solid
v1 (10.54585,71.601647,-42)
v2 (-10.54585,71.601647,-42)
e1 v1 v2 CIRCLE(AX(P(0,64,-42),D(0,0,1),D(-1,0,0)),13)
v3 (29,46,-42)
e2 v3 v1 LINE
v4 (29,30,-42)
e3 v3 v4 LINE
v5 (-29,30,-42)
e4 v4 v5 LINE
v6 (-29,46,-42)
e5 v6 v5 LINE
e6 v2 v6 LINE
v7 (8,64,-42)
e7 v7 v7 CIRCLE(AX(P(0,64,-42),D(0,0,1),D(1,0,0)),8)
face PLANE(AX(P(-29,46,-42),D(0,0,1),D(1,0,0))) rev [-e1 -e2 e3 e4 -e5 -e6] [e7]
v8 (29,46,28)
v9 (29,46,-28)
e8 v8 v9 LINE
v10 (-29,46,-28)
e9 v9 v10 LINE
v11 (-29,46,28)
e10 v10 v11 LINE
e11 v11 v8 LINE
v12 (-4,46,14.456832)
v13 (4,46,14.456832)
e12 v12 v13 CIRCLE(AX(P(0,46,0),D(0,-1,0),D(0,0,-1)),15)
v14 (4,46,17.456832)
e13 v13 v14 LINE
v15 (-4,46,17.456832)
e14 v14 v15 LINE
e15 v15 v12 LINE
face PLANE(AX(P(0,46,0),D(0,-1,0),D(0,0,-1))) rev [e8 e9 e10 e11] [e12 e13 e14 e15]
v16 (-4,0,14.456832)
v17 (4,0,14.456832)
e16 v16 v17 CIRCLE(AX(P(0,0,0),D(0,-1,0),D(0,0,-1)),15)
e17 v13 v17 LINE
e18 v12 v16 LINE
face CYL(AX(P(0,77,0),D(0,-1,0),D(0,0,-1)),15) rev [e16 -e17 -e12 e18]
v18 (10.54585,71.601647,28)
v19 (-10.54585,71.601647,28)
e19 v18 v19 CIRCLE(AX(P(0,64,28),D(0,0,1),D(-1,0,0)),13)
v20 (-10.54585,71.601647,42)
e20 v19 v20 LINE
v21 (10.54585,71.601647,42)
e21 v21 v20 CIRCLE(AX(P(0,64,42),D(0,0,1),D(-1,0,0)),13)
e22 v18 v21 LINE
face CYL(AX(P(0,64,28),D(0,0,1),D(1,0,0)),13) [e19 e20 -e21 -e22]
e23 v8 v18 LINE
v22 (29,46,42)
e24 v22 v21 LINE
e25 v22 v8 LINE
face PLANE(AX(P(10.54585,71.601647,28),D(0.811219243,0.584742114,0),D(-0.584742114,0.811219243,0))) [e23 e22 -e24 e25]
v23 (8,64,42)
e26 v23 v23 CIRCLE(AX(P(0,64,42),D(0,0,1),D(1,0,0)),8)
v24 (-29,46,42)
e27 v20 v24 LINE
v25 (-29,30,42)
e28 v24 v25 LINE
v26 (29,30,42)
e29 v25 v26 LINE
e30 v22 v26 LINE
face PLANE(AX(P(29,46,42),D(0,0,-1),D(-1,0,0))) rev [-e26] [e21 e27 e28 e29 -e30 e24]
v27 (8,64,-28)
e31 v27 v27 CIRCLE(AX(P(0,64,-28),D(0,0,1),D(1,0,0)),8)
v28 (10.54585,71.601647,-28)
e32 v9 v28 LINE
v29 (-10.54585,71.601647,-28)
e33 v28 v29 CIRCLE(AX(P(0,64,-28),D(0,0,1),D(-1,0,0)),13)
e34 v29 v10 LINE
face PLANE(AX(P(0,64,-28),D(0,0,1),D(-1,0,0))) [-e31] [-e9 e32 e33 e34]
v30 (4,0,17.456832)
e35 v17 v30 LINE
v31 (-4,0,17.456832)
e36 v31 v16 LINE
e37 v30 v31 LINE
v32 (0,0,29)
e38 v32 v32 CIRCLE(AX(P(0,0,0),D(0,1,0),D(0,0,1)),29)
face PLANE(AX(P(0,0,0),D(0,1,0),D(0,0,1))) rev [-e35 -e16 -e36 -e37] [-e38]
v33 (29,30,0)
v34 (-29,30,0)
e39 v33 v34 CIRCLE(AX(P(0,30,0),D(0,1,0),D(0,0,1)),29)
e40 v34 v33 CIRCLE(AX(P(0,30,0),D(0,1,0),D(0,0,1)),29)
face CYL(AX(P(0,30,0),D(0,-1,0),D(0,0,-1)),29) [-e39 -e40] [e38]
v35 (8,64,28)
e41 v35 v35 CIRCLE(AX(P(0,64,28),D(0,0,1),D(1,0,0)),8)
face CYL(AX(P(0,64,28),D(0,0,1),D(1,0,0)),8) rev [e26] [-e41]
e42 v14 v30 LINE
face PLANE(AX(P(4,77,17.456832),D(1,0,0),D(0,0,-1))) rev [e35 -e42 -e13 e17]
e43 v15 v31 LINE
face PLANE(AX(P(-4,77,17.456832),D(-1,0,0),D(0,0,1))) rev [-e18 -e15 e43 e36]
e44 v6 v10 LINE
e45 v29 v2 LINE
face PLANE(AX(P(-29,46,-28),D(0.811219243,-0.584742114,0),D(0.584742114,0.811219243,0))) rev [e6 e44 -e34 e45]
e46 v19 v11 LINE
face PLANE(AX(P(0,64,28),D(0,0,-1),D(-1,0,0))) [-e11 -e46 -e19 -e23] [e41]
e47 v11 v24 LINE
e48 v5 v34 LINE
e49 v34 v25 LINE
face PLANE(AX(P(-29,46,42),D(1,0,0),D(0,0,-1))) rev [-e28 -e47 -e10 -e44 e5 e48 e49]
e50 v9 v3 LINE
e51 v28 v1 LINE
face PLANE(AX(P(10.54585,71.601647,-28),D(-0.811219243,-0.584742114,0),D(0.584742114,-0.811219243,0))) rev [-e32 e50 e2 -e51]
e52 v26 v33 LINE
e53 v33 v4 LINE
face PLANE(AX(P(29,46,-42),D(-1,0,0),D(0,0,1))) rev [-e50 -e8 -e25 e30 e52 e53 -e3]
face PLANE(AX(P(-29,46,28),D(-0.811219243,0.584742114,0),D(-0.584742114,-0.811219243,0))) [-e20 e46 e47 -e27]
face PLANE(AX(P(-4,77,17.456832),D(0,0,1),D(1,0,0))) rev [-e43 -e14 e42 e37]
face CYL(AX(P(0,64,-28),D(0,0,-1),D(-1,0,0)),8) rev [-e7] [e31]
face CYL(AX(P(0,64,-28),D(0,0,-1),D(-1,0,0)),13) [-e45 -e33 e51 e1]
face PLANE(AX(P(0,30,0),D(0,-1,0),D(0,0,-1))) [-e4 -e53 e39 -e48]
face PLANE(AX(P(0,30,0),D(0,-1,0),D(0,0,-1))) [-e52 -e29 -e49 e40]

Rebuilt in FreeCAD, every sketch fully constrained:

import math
import FreeCAD as App
import Part
import Sketcher


def add_polygon(sketch, points):
    """Adds a closed chain of lines whose ends are joined by coincident constraints."""
    first, n = sketch.GeometryCount, len(points)
    for a, b in zip(points, points[1:] + points[:1]):
        sketch.addGeometry(Part.LineSegment(App.Vector(*a, 0), App.Vector(*b, 0)), False)
    for i in range(n):
        sketch.addConstraint(Sketcher.Constraint("Coincident", first + i, 2, first + (i + 1) % n, 1))

doc = App.newDocument("Part")
params = doc.addObject("Spreadsheet::Sheet", "Params")
for row, (alias, value) in enumerate([
    ("sketch1_diameter", "58 mm"),
    ("pad1_length", "30 mm"),
    ("sketch2_width", "58 mm"),
    ("sketch2_height", "84 mm"),
    ("pad2_length", "16 mm"),
    ("sketch3_diameter", "16 mm"),
    ("sketch3_radius", "13 mm"),
    ("sketch3_width", "58 mm"),
    ("sketch3_height", "16 mm"),
    ("pad3_length", "14 mm"),
    ("sketch4_radius", "15 mm"),
    ("sketch4_width", "8 mm"),
    ("sketch4_height", "3 mm"),
], start=1):
    params.set(f"A{row}", alias)
    params.set(f"B{row}", "=" + value)
    params.setAlias(f"B{row}", alias)

body = doc.addObject("PartDesign::Body", "Body")

# Sketch on XZ plane
sketch1 = doc.addObject("Sketcher::SketchObject", "Sketch")
body.addObject(sketch1)
sketch1.AttachmentSupport = (doc.XZ_Plane, [""])
sketch1.MapMode = "FlatFace"
sketch1.addGeometry(Part.Circle(App.Vector(0, 0, 0), App.Vector(0, 0, 1), 29), False)
sketch1.addConstraint(Sketcher.Constraint("Coincident", 0, 3, -1, 1))
sketch1.addConstraint(Sketcher.Constraint("Diameter", 0, 58.0))
sketch1.setExpression("Constraints[1]", "Params.sketch1_diameter")
pad1 = doc.addObject("PartDesign::Pad", "Pad")
body.addObject(pad1)
pad1.Profile = sketch1
pad1.setExpression("Length", "Params.pad1_length")
pad1.Reversed = True

# Sketch on XZ plane
sketch2 = doc.addObject("Sketcher::SketchObject", "Sketch001")
body.addObject(sketch2)
sketch2.AttachmentSupport = (doc.XZ_Plane, [""])
sketch2.MapMode = "FlatFace"
sketch2.AttachmentOffset = App.Placement(App.Vector(0, 0, -30), App.Rotation())
add_polygon(sketch2, [(29, 42), (29, -42), (-29, -42), (-29, 42)])  # lines 0-3
sketch2.addConstraint(Sketcher.Constraint("Vertical", 0))
sketch2.addConstraint(Sketcher.Constraint("Horizontal", 1))
sketch2.addConstraint(Sketcher.Constraint("Vertical", 2))
sketch2.addConstraint(Sketcher.Constraint("Horizontal", 3))
sketch2.addConstraint(Sketcher.Constraint("Symmetric", 0, 2, 2, 2, -1, 1))
sketch2.addConstraint(Sketcher.Constraint("DistanceX", 1, 2, 1, 1, 58.0))
sketch2.addConstraint(Sketcher.Constraint("DistanceY", 0, 2, 0, 1, 84.0))
sketch2.setExpression("Constraints[9]", "Params.sketch2_width")
sketch2.setExpression("Constraints[10]", "Params.sketch2_height")
pad2 = doc.addObject("PartDesign::Pad", "Pad001")
body.addObject(pad2)
pad2.Profile = sketch2
pad2.setExpression("Length", "Params.pad2_length")
pad2.Reversed = True

# Sketch on XY plane
sketch3 = doc.addObject("Sketcher::SketchObject", "Sketch002")
body.addObject(sketch3)
sketch3.AttachmentSupport = (doc.XY_Plane, [""])
sketch3.MapMode = "FlatFace"
sketch3.AttachmentOffset = App.Placement(App.Vector(0, 0, 42), App.Rotation())
sketch3.addGeometry(Part.LineSegment(App.Vector(-29, 46, 0), App.Vector(-29, 30, 0)), False)
sketch3.addGeometry(Part.LineSegment(App.Vector(-29, 30, 0), App.Vector(29, 30, 0)), False)
sketch3.addGeometry(Part.LineSegment(App.Vector(29, 30, 0), App.Vector(29, 46, 0)), False)
sketch3.addGeometry(Part.LineSegment(App.Vector(29, 46, 0), App.Vector(11, 72, 0)), False)
sketch3.addGeometry(Part.ArcOfCircle(Part.Circle(App.Vector(0, 64, 0), App.Vector(0, 0, 1), 13), math.radians(36), math.radians(144)), False)
sketch3.addGeometry(Part.LineSegment(App.Vector(-11, 72, 0), App.Vector(-29, 46, 0)), False)
sketch3.addGeometry(Part.Circle(App.Vector(0, 64, 0), App.Vector(0, 0, 1), 8), False)
sketch3.addConstraint(Sketcher.Constraint("Coincident", 0, 2, 1, 1))
sketch3.addConstraint(Sketcher.Constraint("Coincident", 1, 2, 2, 1))
sketch3.addConstraint(Sketcher.Constraint("Coincident", 2, 2, 3, 1))
sketch3.addConstraint(Sketcher.Constraint("Tangent", 3, 2, 4, 1))
sketch3.addConstraint(Sketcher.Constraint("Tangent", 4, 2, 5, 1))
sketch3.addConstraint(Sketcher.Constraint("Coincident", 5, 2, 0, 1))
sketch3.addConstraint(Sketcher.Constraint("Vertical", 0))
sketch3.addConstraint(Sketcher.Constraint("Horizontal", 1))
sketch3.addConstraint(Sketcher.Constraint("Vertical", 2))
sketch3.addConstraint(Sketcher.Constraint("Coincident", 6, 3, 4, 3))
sketch3.addConstraint(Sketcher.Constraint("Symmetric", 3, 2, 4, 2, -2))
sketch3.addConstraint(Sketcher.Constraint("Horizontal", 2, 2, 5, 2))
sketch3.addConstraint(Sketcher.Constraint("Diameter", 6, 16.0))
sketch3.addConstraint(Sketcher.Constraint("Radius", 4, 13.0))
sketch3.addConstraint(Sketcher.Constraint("DistanceX", 1, 1, 1, 2, 58.0))
sketch3.addConstraint(Sketcher.Constraint("DistanceY", 0, 2, 0, 1, 16.0))
sketch3.addConstraint(Sketcher.Constraint("DistanceY", -1, 1, 4, 3, 64.0))
sketch3.addConstraint(Sketcher.Constraint("DistanceY", -1, 1, 0, 2, 30.0))
sketch3.setExpression("Constraints[12]", "Params.sketch3_diameter")
sketch3.setExpression("Constraints[13]", "Params.sketch3_radius")
sketch3.setExpression("Constraints[14]", "Params.sketch3_width")
sketch3.setExpression("Constraints[15]", "Params.sketch3_height")
pad3 = doc.addObject("PartDesign::Pad", "Pad002")
body.addObject(pad3)
pad3.Profile = sketch3
pad3.setExpression("Length", "Params.pad3_length")
pad3.Reversed = True
doc.recompute()

mirrored = doc.addObject("PartDesign::Mirrored", "Mirrored")
body.addObject(mirrored)
mirrored.Originals = [pad3]
mirrored.MirrorPlane = (doc.XY_Plane, [""])
body.Tip = mirrored

# Sketch on XZ plane
sketch4 = doc.addObject("Sketcher::SketchObject", "Sketch003")
body.addObject(sketch4)
sketch4.AttachmentSupport = (doc.XZ_Plane, [""])
sketch4.MapMode = "FlatFace"
sketch4.addGeometry(Part.LineSegment(App.Vector(4, 17.5, 0), App.Vector(-4, 17.5, 0)), False)
sketch4.addGeometry(Part.LineSegment(App.Vector(-4, 17.5, 0), App.Vector(-4, 14.5, 0)), False)
sketch4.addGeometry(Part.ArcOfCircle(Part.Circle(App.Vector(0, 0, 0), App.Vector(0, 0, 1), 15), math.radians(105), math.radians(435)), False)
sketch4.addGeometry(Part.LineSegment(App.Vector(4, 14.5, 0), App.Vector(4, 17.5, 0)), False)
sketch4.addConstraint(Sketcher.Constraint("Coincident", 0, 2, 1, 1))
sketch4.addConstraint(Sketcher.Constraint("Coincident", 1, 2, 2, 1))
sketch4.addConstraint(Sketcher.Constraint("Coincident", 2, 2, 3, 1))
sketch4.addConstraint(Sketcher.Constraint("Coincident", 3, 2, 0, 1))
sketch4.addConstraint(Sketcher.Constraint("Horizontal", 0))
sketch4.addConstraint(Sketcher.Constraint("Vertical", 1))
sketch4.addConstraint(Sketcher.Constraint("Vertical", 3))
sketch4.addConstraint(Sketcher.Constraint("Coincident", 2, 3, -1, 1))
sketch4.addConstraint(Sketcher.Constraint("Horizontal", 1, 2, 2, 2))
sketch4.addConstraint(Sketcher.Constraint("Radius", 2, 15.0))
sketch4.addConstraint(Sketcher.Constraint("DistanceX", 0, 2, 0, 1, 8.0))
sketch4.addConstraint(Sketcher.Constraint("DistanceY", 1, 2, 1, 1, 3.0))
sketch4.setExpression("Constraints[9]", "Params.sketch4_radius")
sketch4.setExpression("Constraints[10]", "Params.sketch4_width")
sketch4.setExpression("Constraints[11]", "Params.sketch4_height")
pocket1 = doc.addObject("PartDesign::Pocket", "Pocket")
body.addObject(pocket1)
pocket1.Profile = sketch4
pocket1.Type = "ThroughAll"

doc.recompute()
